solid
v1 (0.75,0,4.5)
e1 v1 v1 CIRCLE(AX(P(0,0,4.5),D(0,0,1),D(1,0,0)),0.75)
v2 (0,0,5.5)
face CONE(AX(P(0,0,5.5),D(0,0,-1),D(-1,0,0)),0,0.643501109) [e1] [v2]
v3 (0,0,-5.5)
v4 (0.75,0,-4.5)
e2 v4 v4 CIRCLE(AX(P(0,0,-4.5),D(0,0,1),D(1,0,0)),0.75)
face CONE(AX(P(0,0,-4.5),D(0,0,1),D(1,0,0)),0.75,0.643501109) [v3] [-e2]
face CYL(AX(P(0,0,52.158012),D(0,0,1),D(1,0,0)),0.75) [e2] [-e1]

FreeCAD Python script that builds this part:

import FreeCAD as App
import Part
import Sketcher

V = App.Vector
Q = App.Units.Quantity


def add_polygon(sketch, points):
    """Adds a closed chain of lines whose ends are joined by coincident constraints."""
    first, n = sketch.GeometryCount, len(points)
    for a, b in zip(points, points[1:] + points[:1]):
        sketch.addGeometry(Part.LineSegment(App.Vector(*a, 0), App.Vector(*b, 0)), False)
    for i in range(n):
        sketch.addConstraint(Sketcher.Constraint("Coincident", first + i, 2, first + (i + 1) % n, 1))

doc = App.newDocument("Part")
body = doc.addObject("PartDesign::Body", "Body")

# Sketch on XZ plane
sketch1 = doc.addObject("Sketcher::SketchObject", "Sketch")
body.addObject(sketch1)
sketch1.AttachmentSupport = (doc.XZ_Plane, [""])
sketch1.MapMode = "FlatFace"
add_polygon(sketch1, [(0, 5.5), (0.8, 4.5), (0.8, -4.5), (0, -5.5)])  # lines 0-3
sketch1.addConstraint([
    Sketcher.Constraint("Vertical", 1),
    Sketcher.Constraint("Vertical", 3),
    Sketcher.Constraint("Symmetric", 2, 2, 3, 2, -1, 1),
    Sketcher.Constraint("Equal", 0, 2),
    Sketcher.Constraint("DistanceY", 1, 2, 1, 1, Q("9 mm")),
    Sketcher.Constraint("DistanceY", 3, 1, 3, 2, Q("11 mm")),
    Sketcher.Constraint("Distance", 0, Q("1.25 mm")),
])
revolution = doc.addObject("PartDesign::Revolution", "Revolution")
body.addObject(revolution)
revolution.Profile = sketch1
revolution.ReferenceAxis = (sketch1, ["V_Axis"])
revolution.Angle = 360

doc.recompute()
